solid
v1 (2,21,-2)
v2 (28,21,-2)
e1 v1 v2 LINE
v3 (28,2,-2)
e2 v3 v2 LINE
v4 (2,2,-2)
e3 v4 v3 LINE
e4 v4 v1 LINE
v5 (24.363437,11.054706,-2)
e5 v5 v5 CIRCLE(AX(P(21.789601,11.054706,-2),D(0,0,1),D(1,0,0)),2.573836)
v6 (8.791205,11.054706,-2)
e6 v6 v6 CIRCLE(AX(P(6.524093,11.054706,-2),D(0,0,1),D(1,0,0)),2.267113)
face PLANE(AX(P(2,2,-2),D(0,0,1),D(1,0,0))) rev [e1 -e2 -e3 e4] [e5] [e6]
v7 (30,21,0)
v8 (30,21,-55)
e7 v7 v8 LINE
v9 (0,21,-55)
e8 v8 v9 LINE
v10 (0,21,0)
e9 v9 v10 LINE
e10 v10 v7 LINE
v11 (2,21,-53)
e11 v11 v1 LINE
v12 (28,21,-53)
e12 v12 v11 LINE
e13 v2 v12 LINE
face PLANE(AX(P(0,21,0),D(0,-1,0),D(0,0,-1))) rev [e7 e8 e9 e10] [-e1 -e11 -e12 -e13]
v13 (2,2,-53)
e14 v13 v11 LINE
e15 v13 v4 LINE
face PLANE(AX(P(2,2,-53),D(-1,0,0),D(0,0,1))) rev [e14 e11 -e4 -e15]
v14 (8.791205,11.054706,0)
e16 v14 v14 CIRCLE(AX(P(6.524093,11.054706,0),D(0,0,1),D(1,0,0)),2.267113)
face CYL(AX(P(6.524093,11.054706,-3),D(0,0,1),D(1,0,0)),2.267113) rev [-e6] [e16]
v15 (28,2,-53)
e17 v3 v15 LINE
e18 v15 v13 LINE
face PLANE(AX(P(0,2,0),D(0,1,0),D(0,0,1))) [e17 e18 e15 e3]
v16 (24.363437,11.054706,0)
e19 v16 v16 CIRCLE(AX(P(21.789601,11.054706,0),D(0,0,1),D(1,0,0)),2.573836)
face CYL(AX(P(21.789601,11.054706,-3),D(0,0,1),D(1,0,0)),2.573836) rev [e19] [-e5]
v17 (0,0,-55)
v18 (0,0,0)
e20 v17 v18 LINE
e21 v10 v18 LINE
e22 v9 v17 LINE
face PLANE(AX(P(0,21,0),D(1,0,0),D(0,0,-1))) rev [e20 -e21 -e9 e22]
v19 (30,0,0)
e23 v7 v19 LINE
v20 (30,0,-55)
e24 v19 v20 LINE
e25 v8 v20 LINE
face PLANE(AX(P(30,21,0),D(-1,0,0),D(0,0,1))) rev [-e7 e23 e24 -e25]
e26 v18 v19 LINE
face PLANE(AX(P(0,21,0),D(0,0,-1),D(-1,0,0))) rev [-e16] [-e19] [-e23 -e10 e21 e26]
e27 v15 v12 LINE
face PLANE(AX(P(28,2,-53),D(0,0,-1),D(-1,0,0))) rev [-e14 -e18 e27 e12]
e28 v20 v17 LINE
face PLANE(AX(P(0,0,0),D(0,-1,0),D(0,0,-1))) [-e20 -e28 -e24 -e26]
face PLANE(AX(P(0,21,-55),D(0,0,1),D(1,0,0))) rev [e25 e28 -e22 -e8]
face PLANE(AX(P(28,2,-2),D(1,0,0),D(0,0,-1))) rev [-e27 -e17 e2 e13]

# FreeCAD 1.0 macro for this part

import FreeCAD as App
import Part
import Sketcher
from FreeCAD import Vector

doc = App.newDocument("Part")
params = doc.addObject("Spreadsheet::Sheet", "Params")
for row, (alias, value) in enumerate([
    ("sketch1_width", "30 mm"),
    ("sketch1_height", "55 mm"),
    ("pad1_length", "21 mm"),
    ("sketch2_width", "26 mm"),
    ("sketch2_height", "51 mm"),
    ("pocket1_length", "19 mm"),
    ("pocket2_length", "3 mm"),
], start=1):
    params.set(f"A{row}", alias)
    params.set(f"B{row}", "=" + value)
    params.setAlias(f"B{row}", alias)

body = doc.addObject("PartDesign::Body", "Body")

# Sketch on XZ plane
sketch1 = body.newObject("Sketcher::SketchObject", "Sketch")
sketch1.AttachmentSupport = (doc.getObject("XZ_Plane"), [""])
sketch1.MapMode = "FlatFace"
sketch1.addGeometry([
    Part.LineSegment(Vector(0, -55, 0), Vector(0, 0, 0)),
    Part.LineSegment(Vector(0, 0, 0), Vector(30, 0, 0)),
    Part.LineSegment(Vector(30, 0, 0), Vector(30, -55, 0)),
    Part.LineSegment(Vector(30, -55, 0), Vector(0, -55, 0)),
], False)
sketch1.addConstraint([
    Sketcher.Constraint("Coincident", 0, 2, 1, 1),
    Sketcher.Constraint("Coincident", 1, 2, 2, 1),
    Sketcher.Constraint("Coincident", 2, 2, 3, 1),
    Sketcher.Constraint("Coincident", 3, 2, 0, 1),
    Sketcher.Constraint("Vertical", 0),
    Sketcher.Constraint("Horizontal", 1),
    Sketcher.Constraint("Vertical", 2),
    Sketcher.Constraint("Horizontal", 3),
    Sketcher.Constraint("Coincident", 0, 2, -1, 1),
    Sketcher.Constraint("DistanceX", 1, 1, 1, 2, 30.0),
    Sketcher.Constraint("DistanceY", 0, 1, 0, 2, 55.0),
])
sketch1.setExpression("Constraints[9]", "Params.sketch1_width")
sketch1.setExpression("Constraints[10]", "Params.sketch1_height")
pad1 = body.newObject("PartDesign::Pad", "Pad")
pad1.Profile = sketch1
pad1.setExpression("Length", "Params.pad1_length")
pad1.Reversed = True

# Sketch on XZ plane
sketch2 = body.newObject("Sketcher::SketchObject", "Sketch001")
sketch2.AttachmentSupport = (doc.getObject("XZ_Plane"), [""])
sketch2.MapMode = "FlatFace"
sketch2.AttachmentOffset = App.Placement(Vector(0, 0, -21), App.Rotation())
sketch2.addGeometry([
    Part.LineSegment(Vector(2, -53, 0), Vector(2, -2, 0)),
    Part.LineSegment(Vector(2, -2, 0), Vector(28, -2, 0)),
    Part.LineSegment(Vector(28, -2, 0), Vector(28, -53, 0)),
    Part.LineSegment(Vector(28, -53, 0), Vector(2, -53, 0)),
], False)
sketch2.addConstraint([
    Sketcher.Constraint("Coincident", 0, 2, 1, 1),
    Sketcher.Constraint("Coincident", 1, 2, 2, 1),
    Sketcher.Constraint("Coincident", 2, 2, 3, 1),
    Sketcher.Constraint("Coincident", 3, 2, 0, 1),
    Sketcher.Constraint("Vertical", 0),
    Sketcher.Constraint("Horizontal", 1),
    Sketcher.Constraint("Vertical", 2),
    Sketcher.Constraint("Horizontal", 3),
    Sketcher.Constraint("DistanceX", 1, 1, 1, 2, 26.0),
    Sketcher.Constraint("DistanceY", 0, 1, 0, 2, 51.0),
    Sketcher.Constraint("DistanceX", -1, 1, 0, 2, 2.0),
    Sketcher.Constraint("DistanceY", 0, 2, -1, 1, 2.0),
])
sketch2.setExpression("Constraints[8]", "Params.sketch2_width")
sketch2.setExpression("Constraints[9]", "Params.sketch2_height")
pocket1 = body.newObject("PartDesign::Pocket", "Pocket")
pocket1.Profile = sketch2
pocket1.setExpression("Length", "Params.pocket1_length")
pocket1.Reversed = True

# Sketch on XY plane
sketch3 = body.newObject("Sketcher::SketchObject", "Sketch002")
sketch3.AttachmentSupport = (doc.getObject("XY_Plane"), [""])
sketch3.MapMode = "FlatFace"
sketch3.addGeometry([
    Part.Circle(Vector(6.524093, 11.054706, 0), Vector(0, 0, 1), 2.267113),
    Part.Circle(Vector(21.789601, 11.054706, 0), Vector(0, 0, 1), 2.573836),
], False)
sketch3.addConstraint([
    Sketcher.Constraint("Horizontal", 0, 3, 1, 3),
    Sketcher.Constraint("Diameter", 1, 5.147672),
    Sketcher.Constraint("Diameter", 0, 4.534225),
    Sketcher.Constraint("DistanceX", -1, 1, 1, 3, 21.789601),
    Sketcher.Constraint("DistanceX", 0, 3, 1, 3, 15.265509),
    Sketcher.Constraint("DistanceY", -1, 1, 0, 3, 11.054706),
])
pocket2 = body.newObject("PartDesign::Pocket", "Pocket001")
pocket2.Profile = sketch3
pocket2.setExpression("Length", "Params.pocket2_length")

doc.recompute()
